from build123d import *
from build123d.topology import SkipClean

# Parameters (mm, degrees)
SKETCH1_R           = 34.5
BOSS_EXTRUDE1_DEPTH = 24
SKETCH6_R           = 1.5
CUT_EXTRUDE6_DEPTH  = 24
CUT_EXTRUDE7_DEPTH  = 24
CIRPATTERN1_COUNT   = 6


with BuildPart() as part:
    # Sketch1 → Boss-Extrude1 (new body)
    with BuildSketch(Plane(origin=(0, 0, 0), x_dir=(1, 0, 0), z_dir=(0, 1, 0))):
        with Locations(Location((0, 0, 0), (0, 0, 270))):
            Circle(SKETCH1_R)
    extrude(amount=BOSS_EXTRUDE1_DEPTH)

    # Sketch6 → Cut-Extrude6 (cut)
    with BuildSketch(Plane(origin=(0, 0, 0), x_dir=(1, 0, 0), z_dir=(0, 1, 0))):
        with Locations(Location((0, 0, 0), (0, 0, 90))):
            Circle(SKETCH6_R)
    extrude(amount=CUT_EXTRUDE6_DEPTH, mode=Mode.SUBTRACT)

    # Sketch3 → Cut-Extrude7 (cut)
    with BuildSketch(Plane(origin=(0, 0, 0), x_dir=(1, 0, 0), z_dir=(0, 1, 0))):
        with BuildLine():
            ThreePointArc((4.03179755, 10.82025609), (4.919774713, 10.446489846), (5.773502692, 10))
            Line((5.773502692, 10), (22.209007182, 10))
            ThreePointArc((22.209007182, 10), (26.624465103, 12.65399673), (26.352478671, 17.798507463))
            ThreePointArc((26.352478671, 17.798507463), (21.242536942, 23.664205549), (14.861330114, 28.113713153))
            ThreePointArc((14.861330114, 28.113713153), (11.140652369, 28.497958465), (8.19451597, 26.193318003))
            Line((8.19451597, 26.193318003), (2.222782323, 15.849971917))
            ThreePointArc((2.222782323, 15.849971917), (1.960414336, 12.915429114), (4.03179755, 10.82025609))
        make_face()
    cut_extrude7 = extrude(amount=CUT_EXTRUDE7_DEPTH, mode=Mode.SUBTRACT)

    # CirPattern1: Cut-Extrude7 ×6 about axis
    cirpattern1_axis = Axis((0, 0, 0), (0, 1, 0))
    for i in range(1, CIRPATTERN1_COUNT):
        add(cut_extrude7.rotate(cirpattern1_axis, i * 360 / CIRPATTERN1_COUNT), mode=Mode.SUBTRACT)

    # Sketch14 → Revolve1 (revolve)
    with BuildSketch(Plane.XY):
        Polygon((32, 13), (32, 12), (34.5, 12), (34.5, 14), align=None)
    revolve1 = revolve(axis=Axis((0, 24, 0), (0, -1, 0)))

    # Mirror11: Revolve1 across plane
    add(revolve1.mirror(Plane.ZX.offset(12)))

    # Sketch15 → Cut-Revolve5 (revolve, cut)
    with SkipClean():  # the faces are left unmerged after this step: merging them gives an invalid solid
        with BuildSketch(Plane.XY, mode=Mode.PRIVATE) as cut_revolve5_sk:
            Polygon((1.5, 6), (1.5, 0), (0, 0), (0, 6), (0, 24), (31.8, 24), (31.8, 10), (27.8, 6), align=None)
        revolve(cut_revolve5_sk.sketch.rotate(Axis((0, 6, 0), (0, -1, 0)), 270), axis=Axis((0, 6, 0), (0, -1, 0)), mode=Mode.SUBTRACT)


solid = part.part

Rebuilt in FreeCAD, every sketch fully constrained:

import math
import FreeCAD as App
import Part
import Sketcher

V = App.Vector
Q = App.Units.Quantity

doc = App.newDocument("Part")
body = doc.addObject("PartDesign::Body", "Body")

# Sketch on XZ plane
sketch1 = doc.addObject("Sketcher::SketchObject", "Sketch")
body.addObject(sketch1)
sketch1.AttachmentSupport = (doc.XZ_Plane, [""])
sketch1.MapMode = "FlatFace"
sketch1.addGeometry(Part.Circle(V(0, 0, 0), V(0, 0, 1), 34), False)
sketch1.addConstraint(Sketcher.Constraint("Coincident", 0, 3, -1, 1))
sketch1.addConstraint(Sketcher.Constraint("Diameter", 0, Q("69 mm")))
pad1 = doc.addObject("PartDesign::Pad", "Pad")
body.addObject(pad1)
pad1.Profile = sketch1
pad1.Length = 24
pad1.Reversed = True

# Sketch on XZ plane
sketch2 = doc.addObject("Sketcher::SketchObject", "Sketch001")
body.addObject(sketch2)
sketch2.AttachmentSupport = (doc.XZ_Plane, [""])
sketch2.MapMode = "FlatFace"
sketch2.addGeometry(Part.Circle(V(0, 0, 0), V(0, 0, 1), 1.5), False)
sketch2.addConstraint(Sketcher.Constraint("Coincident", 0, 3, -1, 1))
sketch2.addConstraint(Sketcher.Constraint("Diameter", 0, Q("3 mm")))
pocket1 = doc.addObject("PartDesign::Pocket", "Pocket")
body.addObject(pocket1)
pocket1.Profile = sketch2
pocket1.Length = 24

# Sketch on XZ plane
sketch3 = doc.addObject("Sketcher::SketchObject", "Sketch002")
body.addObject(sketch3)
sketch3.AttachmentSupport = (doc.XZ_Plane, [""])
sketch3.MapMode = "FlatFace"
sketch3.addGeometry(Part.ArcOfCircle(Part.Circle(V(0, 0, 0), V(0, 0, 1), 11.5), math.radians(-69.56), math.radians(-60)), False)
sketch3.addGeometry(Part.LineSegment(V(5.8, -10, 0), V(22.2, -10, 0)), False)
sketch3.addGeometry(Part.ArcOfCircle(Part.Circle(V(22.2, -15, 0), V(0, 0, 1), 5), math.radians(-34), math.radians(90)), False)
sketch3.addGeometry(Part.ArcOfCircle(Part.Circle(V(0, 0, 0), V(0, 0, 1), 31.8), math.radians(-62), math.radians(-34)), False)
sketch3.addGeometry(Part.ArcOfCircle(Part.Circle(V(12.5, -23.7, 0), V(0, 0, 1), 5), math.radians(-150), math.radians(-62)), False)
sketch3.addGeometry(Part.LineSegment(V(8.2, -26.2, 0), V(2.2, -15.8, 0)), False)
sketch3.addGeometry(Part.ArcOfCircle(Part.Circle(V(5.3, -14.1, 0), V(0, 0, 1), 3.5), math.radians(110), math.radians(210)), False)
sketch3.addConstraint(Sketcher.Constraint("Coincident", 0, 2, 1, 1))
sketch3.addConstraint(Sketcher.Constraint("Tangent", 1, 2, 2, 2))
sketch3.addConstraint(Sketcher.Constraint("Tangent", 2, 1, 3, 2))
sketch3.addConstraint(Sketcher.Constraint("Tangent", 3, 1, 4, 2))
sketch3.addConstraint(Sketcher.Constraint("Tangent", 4, 1, 5, 1))
sketch3.addConstraint(Sketcher.Constraint("Tangent", 5, 2, 6, 2))
sketch3.addConstraint(Sketcher.Constraint("Tangent", 6, 1, 0, 1))
sketch3.addConstraint(Sketcher.Constraint("Horizontal", 1))
sketch3.addConstraint(Sketcher.Constraint("Coincident", 0, 3, -1, 1))
sketch3.addConstraint(Sketcher.Constraint("Coincident", 3, 3, -1, 1))
sketch3.addConstraint(Sketcher.Constraint("Equal", 2, 4))
sketch3.addConstraint(Sketcher.Constraint("Radius", 2, Q("5 mm")))
sketch3.addConstraint(Sketcher.Constraint("Radius", 3, Q("31.8 mm")))
sketch3.addConstraint(Sketcher.Constraint("Radius", 6, Q("3.5 mm")))
sketch3.addConstraint(Sketcher.Constraint("Angle", 5, Q("120 deg")))
sketch3.addConstraint(Sketcher.Constraint("DistanceY", 2, 3, -1, 1, Q("15 mm")))
sketch3.addConstraint(Sketcher.Constraint("Radius", 0, Q("11.547005 mm")))
sketch3.addConstraint(Sketcher.Constraint("DistanceY", 4, 3, -1, 1, Q("23.693318 mm")))
pocket2 = doc.addObject("PartDesign::Pocket", "Pocket001")
body.addObject(pocket2)
pocket2.Profile = sketch3
pocket2.Length = 24
doc.recompute()

polarpattern = doc.addObject("PartDesign::PolarPattern", "PolarPattern")
body.addObject(polarpattern)
polarpattern.Originals = [pocket2]
polarpattern.Axis = (doc.Y_Axis, [""])
polarpattern.Angle = 360
polarpattern.Occurrences = 6
body.Tip = polarpattern

# Sketch on XY plane
sketch4 = doc.addObject("Sketcher::SketchObject", "Sketch003")
body.addObject(sketch4)
sketch4.AttachmentSupport = (doc.XY_Plane, [""])
sketch4.MapMode = "FlatFace"
sketch4.addGeometry(Part.LineSegment(V(32, 13, 0), V(32, 12, 0)), False)
sketch4.addGeometry(Part.LineSegment(V(32, 12, 0), V(34.5, 12, 0)), False)
sketch4.addGeometry(Part.LineSegment(V(34.5, 12, 0), V(34.5, 14, 0)), False)
sketch4.addGeometry(Part.LineSegment(V(34.5, 14, 0), V(32, 13, 0)), False)
sketch4.addConstraint(Sketcher.Constraint("Coincident", 0, 2, 1, 1))
sketch4.addConstraint(Sketcher.Constraint("Coincident", 1, 2, 2, 1))
sketch4.addConstraint(Sketcher.Constraint("Coincident", 2, 2, 3, 1))
sketch4.addConstraint(Sketcher.Constraint("Coincident", 3, 2, 0, 1))
sketch4.addConstraint(Sketcher.Constraint("Vertical", 0))
sketch4.addConstraint(Sketcher.Constraint("Horizontal", 1))
sketch4.addConstraint(Sketcher.Constraint("Vertical", 2))
sketch4.addConstraint(Sketcher.Constraint("DistanceY", 0, 2, 0, 1, Q("1 mm")))
sketch4.addConstraint(Sketcher.Constraint("DistanceY", 2, 1, 2, 2, Q("2 mm")))
sketch4.addConstraint(Sketcher.Constraint("DistanceX", 1, 1, 1, 2, Q("2.5 mm")))
sketch4.addConstraint(Sketcher.Constraint("DistanceX", -1, 1, 0, 2, Q("32 mm")))
sketch4.addConstraint(Sketcher.Constraint("DistanceY", -1, 1, 0, 2, Q("12 mm")))
revolution = doc.addObject("PartDesign::Revolution", "Revolution")
body.addObject(revolution)
revolution.Profile = sketch4
revolution.ReferenceAxis = (sketch4, ["V_Axis"])
revolution.Angle = 360
doc.recompute()

datumplane = doc.addObject("PartDesign::Plane", "DatumPlane")
body.addObject(datumplane)
datumplane.AttachmentSupport = (doc.XZ_Plane, [""])
datumplane.MapMode = "FlatFace"
datumplane.AttachmentOffset = App.Placement(V(0, 0, -12), App.Rotation())
mirrored = doc.addObject("PartDesign::Mirrored", "Mirrored")
body.addObject(mirrored)
mirrored.Originals = [revolution]
mirrored.MirrorPlane = (datumplane, [""])
body.Tip = mirrored

# Sketch on XY plane
sketch5 = doc.addObject("Sketcher::SketchObject", "Sketch004")
body.addObject(sketch5)
sketch5.AttachmentSupport = (doc.XY_Plane, [""])
sketch5.MapMode = "FlatFace"
sketch5.addGeometry(Part.LineSegment(V(1.5, 0, 0), V(1.5, 6, 0)), False)
sketch5.addGeometry(Part.LineSegment(V(1.5, 6, 0), V(27.8, 6, 0)), False)
sketch5.addGeometry(Part.LineSegment(V(27.8, 6, 0), V(31.8, 10, 0)), False)
sketch5.addGeometry(Part.LineSegment(V(31.8, 10, 0), V(31.8, 24, 0)), False)
sketch5.addGeometry(Part.LineSegment(V(31.8, 24, 0), V(0, 24, 0)), False)
sketch5.addGeometry(Part.LineSegment(V(0, 24, 0), V(0, 0, 0)), False)
sketch5.addGeometry(Part.LineSegment(V(0, 0, 0), V(1.5, 0, 0)), False)
sketch5.addConstraint(Sketcher.Constraint("Coincident", 0, 2, 1, 1))
sketch5.addConstraint(Sketcher.Constraint("Coincident", 1, 2, 2, 1))
sketch5.addConstraint(Sketcher.Constraint("Coincident", 2, 2, 3, 1))
sketch5.addConstraint(Sketcher.Constraint("Coincident", 3, 2, 4, 1))
sketch5.addConstraint(Sketcher.Constraint("Coincident", 4, 2, 5, 1))
sketch5.addConstraint(Sketcher.Constraint("Coincident", 5, 2, 6, 1))
sketch5.addConstraint(Sketcher.Constraint("Coincident", 6, 2, 0, 1))
sketch5.addConstraint(Sketcher.Constraint("Vertical", 0))
sketch5.addConstraint(Sketcher.Constraint("Horizontal", 1))
sketch5.addConstraint(Sketcher.Constraint("Vertical", 3))
sketch5.addConstraint(Sketcher.Constraint("Horizontal", 4))
sketch5.addConstraint(Sketcher.Constraint("Vertical", 5))
sketch5.addConstraint(Sketcher.Constraint("Horizontal", 6))
sketch5.addConstraint(Sketcher.Constraint("Coincident", 5, 2, -1, 1))
sketch5.addConstraint(Sketcher.Constraint("DistanceY", 0, 1, 0, 2, Q("6 mm")))
sketch5.addConstraint(Sketcher.Constraint("DistanceY", 3, 1, 3, 2, Q("14 mm")))
sketch5.addConstraint(Sketcher.Constraint("DistanceY", 5, 2, 5, 1, Q("24 mm")))
sketch5.addConstraint(Sketcher.Constraint("Angle", 2, Q("45 deg")))
sketch5.addConstraint(Sketcher.Constraint("DistanceX", 1, 1, 1, 2, Q("26.3 mm")))
sketch5.addConstraint(Sketcher.Constraint("DistanceX", 4, 2, 4, 1, Q("31.8 mm")))
groove = doc.addObject("PartDesign::Groove", "Groove")
body.addObject(groove)
groove.Profile = sketch5
groove.ReferenceAxis = (sketch5, ["V_Axis"])
groove.Angle = 360

doc.recompute()
